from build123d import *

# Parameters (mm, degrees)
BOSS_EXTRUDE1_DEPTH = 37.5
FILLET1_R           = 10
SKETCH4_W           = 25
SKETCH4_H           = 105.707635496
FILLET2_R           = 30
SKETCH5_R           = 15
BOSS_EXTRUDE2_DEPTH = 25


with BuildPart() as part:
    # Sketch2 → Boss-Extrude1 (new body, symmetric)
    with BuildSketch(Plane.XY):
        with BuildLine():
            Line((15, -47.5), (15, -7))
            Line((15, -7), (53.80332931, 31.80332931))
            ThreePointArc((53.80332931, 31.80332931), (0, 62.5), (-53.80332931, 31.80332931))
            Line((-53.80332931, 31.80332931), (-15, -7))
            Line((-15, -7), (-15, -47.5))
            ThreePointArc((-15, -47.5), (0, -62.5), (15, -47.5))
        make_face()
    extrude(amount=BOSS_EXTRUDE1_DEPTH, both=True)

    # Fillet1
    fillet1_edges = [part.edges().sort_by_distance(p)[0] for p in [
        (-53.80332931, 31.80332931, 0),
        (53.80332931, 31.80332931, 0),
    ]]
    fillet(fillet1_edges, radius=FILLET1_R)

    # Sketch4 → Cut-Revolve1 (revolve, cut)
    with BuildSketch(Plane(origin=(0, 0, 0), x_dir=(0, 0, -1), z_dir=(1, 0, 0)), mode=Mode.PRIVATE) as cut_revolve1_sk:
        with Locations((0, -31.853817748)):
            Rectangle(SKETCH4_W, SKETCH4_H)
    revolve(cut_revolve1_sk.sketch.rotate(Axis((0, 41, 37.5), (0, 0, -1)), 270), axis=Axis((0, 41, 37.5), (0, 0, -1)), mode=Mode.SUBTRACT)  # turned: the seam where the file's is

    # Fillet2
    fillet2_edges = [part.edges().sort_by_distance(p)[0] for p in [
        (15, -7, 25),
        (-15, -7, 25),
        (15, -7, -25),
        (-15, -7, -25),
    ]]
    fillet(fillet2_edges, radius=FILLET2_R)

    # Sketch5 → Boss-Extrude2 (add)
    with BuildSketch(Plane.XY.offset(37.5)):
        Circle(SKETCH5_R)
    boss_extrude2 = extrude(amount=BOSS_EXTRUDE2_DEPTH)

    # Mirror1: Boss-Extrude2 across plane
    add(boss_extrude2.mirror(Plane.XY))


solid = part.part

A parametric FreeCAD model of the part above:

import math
import FreeCAD as App
import Part
import Sketcher


def edges_at(feature, points):
    """Names of the edges that pass closest to the given points."""
    edges = feature.Shape.Edges
    near = lambda p: min(range(len(edges)), key=lambda i: edges[i].distToShape(Part.Vertex(*p))[0])
    return sorted({f"Edge{near(p) + 1}" for p in points})


def add_polygon(sketch, points):
    """Adds a closed chain of lines whose ends are joined by coincident constraints."""
    first, n = sketch.GeometryCount, len(points)
    for a, b in zip(points, points[1:] + points[:1]):
        sketch.addGeometry(Part.LineSegment(App.Vector(*a, 0), App.Vector(*b, 0)), False)
    for i in range(n):
        sketch.addConstraint(Sketcher.Constraint("Coincident", first + i, 2, first + (i + 1) % n, 1))

doc = App.newDocument("Part")
body = doc.addObject("PartDesign::Body", "Body")

sketch1 = body.newObject("Sketcher::SketchObject", "Sketch")
sketch1.AttachmentSupport = (doc.getObject("XY_Plane"), [""])
sketch1.MapMode = "FlatFace"
sketch1.addGeometry([
    Part.LineSegment(App.Vector(15, -48, 0), App.Vector(15, -7, 0)),
    Part.LineSegment(App.Vector(15, -7, 0), App.Vector(54, 32, 0)),
    Part.ArcOfCircle(Part.Circle(App.Vector(0, 0, 0), App.Vector(0, 0, 1), 63), math.radians(31), math.radians(149)),
    Part.LineSegment(App.Vector(-54, 32, 0), App.Vector(-15, -7, 0)),
    Part.LineSegment(App.Vector(-15, -7, 0), App.Vector(-15, -48, 0)),
    Part.ArcOfCircle(Part.Circle(App.Vector(0, -48, 0), App.Vector(0, 0, 1), 15), math.radians(180), math.radians(360)),
], False)
sketch1.addConstraint([
    Sketcher.Constraint("Coincident", 0, 2, 1, 1),
    Sketcher.Constraint("Coincident", 1, 2, 2, 1),
    Sketcher.Constraint("Coincident", 2, 2, 3, 1),
    Sketcher.Constraint("Coincident", 3, 2, 4, 1),
    Sketcher.Constraint("Tangent", 4, 2, 5, 1),
    Sketcher.Constraint("Tangent", 5, 2, 0, 1),
    Sketcher.Constraint("Vertical", 0),
    Sketcher.Constraint("Vertical", 4),
    Sketcher.Constraint("Coincident", 2, 3, -1, 1),
    Sketcher.Constraint("Symmetric", 0, 2, 3, 2, -2),
    Sketcher.Constraint("Perpendicular", 1, 3),
    Sketcher.Constraint("Horizontal", 1, 2, 2, 2),
    Sketcher.Constraint("Radius", 5, 15.0),
    Sketcher.Constraint("Radius", 2, 62.5),
    Sketcher.Constraint("DistanceY", 0, 1, 0, 2, 40.5),
    Sketcher.Constraint("DistanceY", 0, 2, -1, 1, 7.0),
])
pad1 = body.newObject("PartDesign::Pad", "Pad")
pad1.Profile = sketch1
pad1.Length = 75
pad1.Midplane = True
doc.recompute()

fillet = body.newObject("PartDesign::Fillet", "Fillet")
fillet.Base = (pad1, edges_at(pad1, [(-53.803, 31.803, 0), (53.803, 31.803, 0)]))
fillet.Radius = 10

sketch2 = body.newObject("Sketcher::SketchObject", "Sketch001")
sketch2.AttachmentSupport = (doc.getObject("YZ_Plane"), [""])
sketch2.MapMode = "FlatFace"
add_polygon(sketch2, [(21, 12), (-85, 12), (-85, -12), (21, -12)])
sketch2.addGeometry(Part.LineSegment(App.Vector(41, 12, 0), App.Vector(41, -12, 0)), True)
sketch2.addConstraint([
    Sketcher.Constraint("Horizontal", 0),
    Sketcher.Constraint("Vertical", 1),
    Sketcher.Constraint("Horizontal", 2),
    Sketcher.Constraint("Vertical", 3),
    Sketcher.Constraint("Vertical", 4),
    Sketcher.Constraint("Horizontal", 3, 2, 4, 1),
    Sketcher.Constraint("Horizontal", 2, 2, 4, 2),
    Sketcher.Constraint("DistanceY", 1, 2, 1, 1, 25.0),
    Sketcher.Constraint("DistanceX", -1, 1, 2, 2, 21.0),
    Sketcher.Constraint("DistanceX", -1, 1, 4, 1, 41.0),
    Sketcher.Constraint("DistanceY", -1, 1, 0, 2, 12.5),
    Sketcher.Constraint("DistanceX", 0, 2, 0, 1, 105.707635),
])
groove = body.newObject("PartDesign::Groove", "Groove")
groove.Profile = sketch2
groove.ReferenceAxis = (sketch2, ["Axis0"])
groove.Angle = 360
doc.recompute()

fillet2 = body.newObject("PartDesign::Fillet", "Fillet001")
fillet2.Base = (groove, edges_at(groove, [
    (15, -7, 25),
    (-15, -7, 25),
    (15, -7, -25),
    (-15, -7, -25),
]))
fillet2.Radius = 30

sketch3 = body.newObject("Sketcher::SketchObject", "Sketch002")
sketch3.AttachmentSupport = (doc.getObject("XY_Plane"), [""])
sketch3.MapMode = "FlatFace"
sketch3.AttachmentOffset = App.Placement(App.Vector(0, 0, 37.5), App.Rotation())
sketch3.addGeometry(Part.Circle(App.Vector(0, 0, 0), App.Vector(0, 0, 1), 15), False)
sketch3.addConstraint([
    Sketcher.Constraint("Coincident", 0, 3, -1, 1),
    Sketcher.Constraint("Diameter", 0, 30.0),
])
pad2 = body.newObject("PartDesign::Pad", "Pad001")
pad2.Profile = sketch3
pad2.Length = 25
doc.recompute()

mirrored = body.newObject("PartDesign::Mirrored", "Mirrored")
mirrored.Originals = [pad2]
mirrored.MirrorPlane = (doc.getObject("XY_Plane"), [""])
body.Tip = mirrored

doc.recompute()
